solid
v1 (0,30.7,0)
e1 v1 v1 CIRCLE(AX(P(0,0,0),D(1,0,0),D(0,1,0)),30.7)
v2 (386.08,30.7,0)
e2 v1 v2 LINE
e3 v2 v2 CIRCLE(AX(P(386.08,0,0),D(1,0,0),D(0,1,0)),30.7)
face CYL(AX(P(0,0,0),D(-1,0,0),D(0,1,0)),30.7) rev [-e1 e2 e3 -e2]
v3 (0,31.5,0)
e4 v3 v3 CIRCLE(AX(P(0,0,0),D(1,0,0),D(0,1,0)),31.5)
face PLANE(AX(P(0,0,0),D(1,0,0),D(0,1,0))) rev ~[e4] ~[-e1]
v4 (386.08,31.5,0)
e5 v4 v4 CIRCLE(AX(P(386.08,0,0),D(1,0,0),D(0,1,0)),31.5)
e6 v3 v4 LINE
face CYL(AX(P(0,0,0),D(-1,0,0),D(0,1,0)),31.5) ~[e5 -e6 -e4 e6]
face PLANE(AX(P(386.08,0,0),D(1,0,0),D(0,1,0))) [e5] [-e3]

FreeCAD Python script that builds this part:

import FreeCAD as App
import Part
import Sketcher
from FreeCAD import Vector

doc = App.newDocument("Part")
body = doc.addObject("PartDesign::Body", "Body")

# Sketch on YZ plane
sketch1 = body.newObject("Sketcher::SketchObject", "Sketch")
sketch1.AttachmentSupport = (doc.getObject("YZ_Plane"), [""])
sketch1.MapMode = "FlatFace"
sketch1.addGeometry(Part.Circle(Vector(0, 0, 0), Vector(0, 0, 1), 32), False)
sketch1.addGeometry(Part.Circle(Vector(0, 0, 0), Vector(0, 0, 1), 31), False)
sketch1.addConstraint(Sketcher.Constraint("Coincident", 0, 3, -1, 1))
sketch1.addConstraint(Sketcher.Constraint("Coincident", 1, 3, -1, 1))
sketch1.addConstraint(Sketcher.Constraint("Diameter", 0, 63.0))
sketch1.addConstraint(Sketcher.Constraint("Diameter", 1, 61.4))
pad1 = body.newObject("PartDesign::Pad", "Pad")
pad1.Profile = sketch1
pad1.Length = 386.08

doc.recompute()
